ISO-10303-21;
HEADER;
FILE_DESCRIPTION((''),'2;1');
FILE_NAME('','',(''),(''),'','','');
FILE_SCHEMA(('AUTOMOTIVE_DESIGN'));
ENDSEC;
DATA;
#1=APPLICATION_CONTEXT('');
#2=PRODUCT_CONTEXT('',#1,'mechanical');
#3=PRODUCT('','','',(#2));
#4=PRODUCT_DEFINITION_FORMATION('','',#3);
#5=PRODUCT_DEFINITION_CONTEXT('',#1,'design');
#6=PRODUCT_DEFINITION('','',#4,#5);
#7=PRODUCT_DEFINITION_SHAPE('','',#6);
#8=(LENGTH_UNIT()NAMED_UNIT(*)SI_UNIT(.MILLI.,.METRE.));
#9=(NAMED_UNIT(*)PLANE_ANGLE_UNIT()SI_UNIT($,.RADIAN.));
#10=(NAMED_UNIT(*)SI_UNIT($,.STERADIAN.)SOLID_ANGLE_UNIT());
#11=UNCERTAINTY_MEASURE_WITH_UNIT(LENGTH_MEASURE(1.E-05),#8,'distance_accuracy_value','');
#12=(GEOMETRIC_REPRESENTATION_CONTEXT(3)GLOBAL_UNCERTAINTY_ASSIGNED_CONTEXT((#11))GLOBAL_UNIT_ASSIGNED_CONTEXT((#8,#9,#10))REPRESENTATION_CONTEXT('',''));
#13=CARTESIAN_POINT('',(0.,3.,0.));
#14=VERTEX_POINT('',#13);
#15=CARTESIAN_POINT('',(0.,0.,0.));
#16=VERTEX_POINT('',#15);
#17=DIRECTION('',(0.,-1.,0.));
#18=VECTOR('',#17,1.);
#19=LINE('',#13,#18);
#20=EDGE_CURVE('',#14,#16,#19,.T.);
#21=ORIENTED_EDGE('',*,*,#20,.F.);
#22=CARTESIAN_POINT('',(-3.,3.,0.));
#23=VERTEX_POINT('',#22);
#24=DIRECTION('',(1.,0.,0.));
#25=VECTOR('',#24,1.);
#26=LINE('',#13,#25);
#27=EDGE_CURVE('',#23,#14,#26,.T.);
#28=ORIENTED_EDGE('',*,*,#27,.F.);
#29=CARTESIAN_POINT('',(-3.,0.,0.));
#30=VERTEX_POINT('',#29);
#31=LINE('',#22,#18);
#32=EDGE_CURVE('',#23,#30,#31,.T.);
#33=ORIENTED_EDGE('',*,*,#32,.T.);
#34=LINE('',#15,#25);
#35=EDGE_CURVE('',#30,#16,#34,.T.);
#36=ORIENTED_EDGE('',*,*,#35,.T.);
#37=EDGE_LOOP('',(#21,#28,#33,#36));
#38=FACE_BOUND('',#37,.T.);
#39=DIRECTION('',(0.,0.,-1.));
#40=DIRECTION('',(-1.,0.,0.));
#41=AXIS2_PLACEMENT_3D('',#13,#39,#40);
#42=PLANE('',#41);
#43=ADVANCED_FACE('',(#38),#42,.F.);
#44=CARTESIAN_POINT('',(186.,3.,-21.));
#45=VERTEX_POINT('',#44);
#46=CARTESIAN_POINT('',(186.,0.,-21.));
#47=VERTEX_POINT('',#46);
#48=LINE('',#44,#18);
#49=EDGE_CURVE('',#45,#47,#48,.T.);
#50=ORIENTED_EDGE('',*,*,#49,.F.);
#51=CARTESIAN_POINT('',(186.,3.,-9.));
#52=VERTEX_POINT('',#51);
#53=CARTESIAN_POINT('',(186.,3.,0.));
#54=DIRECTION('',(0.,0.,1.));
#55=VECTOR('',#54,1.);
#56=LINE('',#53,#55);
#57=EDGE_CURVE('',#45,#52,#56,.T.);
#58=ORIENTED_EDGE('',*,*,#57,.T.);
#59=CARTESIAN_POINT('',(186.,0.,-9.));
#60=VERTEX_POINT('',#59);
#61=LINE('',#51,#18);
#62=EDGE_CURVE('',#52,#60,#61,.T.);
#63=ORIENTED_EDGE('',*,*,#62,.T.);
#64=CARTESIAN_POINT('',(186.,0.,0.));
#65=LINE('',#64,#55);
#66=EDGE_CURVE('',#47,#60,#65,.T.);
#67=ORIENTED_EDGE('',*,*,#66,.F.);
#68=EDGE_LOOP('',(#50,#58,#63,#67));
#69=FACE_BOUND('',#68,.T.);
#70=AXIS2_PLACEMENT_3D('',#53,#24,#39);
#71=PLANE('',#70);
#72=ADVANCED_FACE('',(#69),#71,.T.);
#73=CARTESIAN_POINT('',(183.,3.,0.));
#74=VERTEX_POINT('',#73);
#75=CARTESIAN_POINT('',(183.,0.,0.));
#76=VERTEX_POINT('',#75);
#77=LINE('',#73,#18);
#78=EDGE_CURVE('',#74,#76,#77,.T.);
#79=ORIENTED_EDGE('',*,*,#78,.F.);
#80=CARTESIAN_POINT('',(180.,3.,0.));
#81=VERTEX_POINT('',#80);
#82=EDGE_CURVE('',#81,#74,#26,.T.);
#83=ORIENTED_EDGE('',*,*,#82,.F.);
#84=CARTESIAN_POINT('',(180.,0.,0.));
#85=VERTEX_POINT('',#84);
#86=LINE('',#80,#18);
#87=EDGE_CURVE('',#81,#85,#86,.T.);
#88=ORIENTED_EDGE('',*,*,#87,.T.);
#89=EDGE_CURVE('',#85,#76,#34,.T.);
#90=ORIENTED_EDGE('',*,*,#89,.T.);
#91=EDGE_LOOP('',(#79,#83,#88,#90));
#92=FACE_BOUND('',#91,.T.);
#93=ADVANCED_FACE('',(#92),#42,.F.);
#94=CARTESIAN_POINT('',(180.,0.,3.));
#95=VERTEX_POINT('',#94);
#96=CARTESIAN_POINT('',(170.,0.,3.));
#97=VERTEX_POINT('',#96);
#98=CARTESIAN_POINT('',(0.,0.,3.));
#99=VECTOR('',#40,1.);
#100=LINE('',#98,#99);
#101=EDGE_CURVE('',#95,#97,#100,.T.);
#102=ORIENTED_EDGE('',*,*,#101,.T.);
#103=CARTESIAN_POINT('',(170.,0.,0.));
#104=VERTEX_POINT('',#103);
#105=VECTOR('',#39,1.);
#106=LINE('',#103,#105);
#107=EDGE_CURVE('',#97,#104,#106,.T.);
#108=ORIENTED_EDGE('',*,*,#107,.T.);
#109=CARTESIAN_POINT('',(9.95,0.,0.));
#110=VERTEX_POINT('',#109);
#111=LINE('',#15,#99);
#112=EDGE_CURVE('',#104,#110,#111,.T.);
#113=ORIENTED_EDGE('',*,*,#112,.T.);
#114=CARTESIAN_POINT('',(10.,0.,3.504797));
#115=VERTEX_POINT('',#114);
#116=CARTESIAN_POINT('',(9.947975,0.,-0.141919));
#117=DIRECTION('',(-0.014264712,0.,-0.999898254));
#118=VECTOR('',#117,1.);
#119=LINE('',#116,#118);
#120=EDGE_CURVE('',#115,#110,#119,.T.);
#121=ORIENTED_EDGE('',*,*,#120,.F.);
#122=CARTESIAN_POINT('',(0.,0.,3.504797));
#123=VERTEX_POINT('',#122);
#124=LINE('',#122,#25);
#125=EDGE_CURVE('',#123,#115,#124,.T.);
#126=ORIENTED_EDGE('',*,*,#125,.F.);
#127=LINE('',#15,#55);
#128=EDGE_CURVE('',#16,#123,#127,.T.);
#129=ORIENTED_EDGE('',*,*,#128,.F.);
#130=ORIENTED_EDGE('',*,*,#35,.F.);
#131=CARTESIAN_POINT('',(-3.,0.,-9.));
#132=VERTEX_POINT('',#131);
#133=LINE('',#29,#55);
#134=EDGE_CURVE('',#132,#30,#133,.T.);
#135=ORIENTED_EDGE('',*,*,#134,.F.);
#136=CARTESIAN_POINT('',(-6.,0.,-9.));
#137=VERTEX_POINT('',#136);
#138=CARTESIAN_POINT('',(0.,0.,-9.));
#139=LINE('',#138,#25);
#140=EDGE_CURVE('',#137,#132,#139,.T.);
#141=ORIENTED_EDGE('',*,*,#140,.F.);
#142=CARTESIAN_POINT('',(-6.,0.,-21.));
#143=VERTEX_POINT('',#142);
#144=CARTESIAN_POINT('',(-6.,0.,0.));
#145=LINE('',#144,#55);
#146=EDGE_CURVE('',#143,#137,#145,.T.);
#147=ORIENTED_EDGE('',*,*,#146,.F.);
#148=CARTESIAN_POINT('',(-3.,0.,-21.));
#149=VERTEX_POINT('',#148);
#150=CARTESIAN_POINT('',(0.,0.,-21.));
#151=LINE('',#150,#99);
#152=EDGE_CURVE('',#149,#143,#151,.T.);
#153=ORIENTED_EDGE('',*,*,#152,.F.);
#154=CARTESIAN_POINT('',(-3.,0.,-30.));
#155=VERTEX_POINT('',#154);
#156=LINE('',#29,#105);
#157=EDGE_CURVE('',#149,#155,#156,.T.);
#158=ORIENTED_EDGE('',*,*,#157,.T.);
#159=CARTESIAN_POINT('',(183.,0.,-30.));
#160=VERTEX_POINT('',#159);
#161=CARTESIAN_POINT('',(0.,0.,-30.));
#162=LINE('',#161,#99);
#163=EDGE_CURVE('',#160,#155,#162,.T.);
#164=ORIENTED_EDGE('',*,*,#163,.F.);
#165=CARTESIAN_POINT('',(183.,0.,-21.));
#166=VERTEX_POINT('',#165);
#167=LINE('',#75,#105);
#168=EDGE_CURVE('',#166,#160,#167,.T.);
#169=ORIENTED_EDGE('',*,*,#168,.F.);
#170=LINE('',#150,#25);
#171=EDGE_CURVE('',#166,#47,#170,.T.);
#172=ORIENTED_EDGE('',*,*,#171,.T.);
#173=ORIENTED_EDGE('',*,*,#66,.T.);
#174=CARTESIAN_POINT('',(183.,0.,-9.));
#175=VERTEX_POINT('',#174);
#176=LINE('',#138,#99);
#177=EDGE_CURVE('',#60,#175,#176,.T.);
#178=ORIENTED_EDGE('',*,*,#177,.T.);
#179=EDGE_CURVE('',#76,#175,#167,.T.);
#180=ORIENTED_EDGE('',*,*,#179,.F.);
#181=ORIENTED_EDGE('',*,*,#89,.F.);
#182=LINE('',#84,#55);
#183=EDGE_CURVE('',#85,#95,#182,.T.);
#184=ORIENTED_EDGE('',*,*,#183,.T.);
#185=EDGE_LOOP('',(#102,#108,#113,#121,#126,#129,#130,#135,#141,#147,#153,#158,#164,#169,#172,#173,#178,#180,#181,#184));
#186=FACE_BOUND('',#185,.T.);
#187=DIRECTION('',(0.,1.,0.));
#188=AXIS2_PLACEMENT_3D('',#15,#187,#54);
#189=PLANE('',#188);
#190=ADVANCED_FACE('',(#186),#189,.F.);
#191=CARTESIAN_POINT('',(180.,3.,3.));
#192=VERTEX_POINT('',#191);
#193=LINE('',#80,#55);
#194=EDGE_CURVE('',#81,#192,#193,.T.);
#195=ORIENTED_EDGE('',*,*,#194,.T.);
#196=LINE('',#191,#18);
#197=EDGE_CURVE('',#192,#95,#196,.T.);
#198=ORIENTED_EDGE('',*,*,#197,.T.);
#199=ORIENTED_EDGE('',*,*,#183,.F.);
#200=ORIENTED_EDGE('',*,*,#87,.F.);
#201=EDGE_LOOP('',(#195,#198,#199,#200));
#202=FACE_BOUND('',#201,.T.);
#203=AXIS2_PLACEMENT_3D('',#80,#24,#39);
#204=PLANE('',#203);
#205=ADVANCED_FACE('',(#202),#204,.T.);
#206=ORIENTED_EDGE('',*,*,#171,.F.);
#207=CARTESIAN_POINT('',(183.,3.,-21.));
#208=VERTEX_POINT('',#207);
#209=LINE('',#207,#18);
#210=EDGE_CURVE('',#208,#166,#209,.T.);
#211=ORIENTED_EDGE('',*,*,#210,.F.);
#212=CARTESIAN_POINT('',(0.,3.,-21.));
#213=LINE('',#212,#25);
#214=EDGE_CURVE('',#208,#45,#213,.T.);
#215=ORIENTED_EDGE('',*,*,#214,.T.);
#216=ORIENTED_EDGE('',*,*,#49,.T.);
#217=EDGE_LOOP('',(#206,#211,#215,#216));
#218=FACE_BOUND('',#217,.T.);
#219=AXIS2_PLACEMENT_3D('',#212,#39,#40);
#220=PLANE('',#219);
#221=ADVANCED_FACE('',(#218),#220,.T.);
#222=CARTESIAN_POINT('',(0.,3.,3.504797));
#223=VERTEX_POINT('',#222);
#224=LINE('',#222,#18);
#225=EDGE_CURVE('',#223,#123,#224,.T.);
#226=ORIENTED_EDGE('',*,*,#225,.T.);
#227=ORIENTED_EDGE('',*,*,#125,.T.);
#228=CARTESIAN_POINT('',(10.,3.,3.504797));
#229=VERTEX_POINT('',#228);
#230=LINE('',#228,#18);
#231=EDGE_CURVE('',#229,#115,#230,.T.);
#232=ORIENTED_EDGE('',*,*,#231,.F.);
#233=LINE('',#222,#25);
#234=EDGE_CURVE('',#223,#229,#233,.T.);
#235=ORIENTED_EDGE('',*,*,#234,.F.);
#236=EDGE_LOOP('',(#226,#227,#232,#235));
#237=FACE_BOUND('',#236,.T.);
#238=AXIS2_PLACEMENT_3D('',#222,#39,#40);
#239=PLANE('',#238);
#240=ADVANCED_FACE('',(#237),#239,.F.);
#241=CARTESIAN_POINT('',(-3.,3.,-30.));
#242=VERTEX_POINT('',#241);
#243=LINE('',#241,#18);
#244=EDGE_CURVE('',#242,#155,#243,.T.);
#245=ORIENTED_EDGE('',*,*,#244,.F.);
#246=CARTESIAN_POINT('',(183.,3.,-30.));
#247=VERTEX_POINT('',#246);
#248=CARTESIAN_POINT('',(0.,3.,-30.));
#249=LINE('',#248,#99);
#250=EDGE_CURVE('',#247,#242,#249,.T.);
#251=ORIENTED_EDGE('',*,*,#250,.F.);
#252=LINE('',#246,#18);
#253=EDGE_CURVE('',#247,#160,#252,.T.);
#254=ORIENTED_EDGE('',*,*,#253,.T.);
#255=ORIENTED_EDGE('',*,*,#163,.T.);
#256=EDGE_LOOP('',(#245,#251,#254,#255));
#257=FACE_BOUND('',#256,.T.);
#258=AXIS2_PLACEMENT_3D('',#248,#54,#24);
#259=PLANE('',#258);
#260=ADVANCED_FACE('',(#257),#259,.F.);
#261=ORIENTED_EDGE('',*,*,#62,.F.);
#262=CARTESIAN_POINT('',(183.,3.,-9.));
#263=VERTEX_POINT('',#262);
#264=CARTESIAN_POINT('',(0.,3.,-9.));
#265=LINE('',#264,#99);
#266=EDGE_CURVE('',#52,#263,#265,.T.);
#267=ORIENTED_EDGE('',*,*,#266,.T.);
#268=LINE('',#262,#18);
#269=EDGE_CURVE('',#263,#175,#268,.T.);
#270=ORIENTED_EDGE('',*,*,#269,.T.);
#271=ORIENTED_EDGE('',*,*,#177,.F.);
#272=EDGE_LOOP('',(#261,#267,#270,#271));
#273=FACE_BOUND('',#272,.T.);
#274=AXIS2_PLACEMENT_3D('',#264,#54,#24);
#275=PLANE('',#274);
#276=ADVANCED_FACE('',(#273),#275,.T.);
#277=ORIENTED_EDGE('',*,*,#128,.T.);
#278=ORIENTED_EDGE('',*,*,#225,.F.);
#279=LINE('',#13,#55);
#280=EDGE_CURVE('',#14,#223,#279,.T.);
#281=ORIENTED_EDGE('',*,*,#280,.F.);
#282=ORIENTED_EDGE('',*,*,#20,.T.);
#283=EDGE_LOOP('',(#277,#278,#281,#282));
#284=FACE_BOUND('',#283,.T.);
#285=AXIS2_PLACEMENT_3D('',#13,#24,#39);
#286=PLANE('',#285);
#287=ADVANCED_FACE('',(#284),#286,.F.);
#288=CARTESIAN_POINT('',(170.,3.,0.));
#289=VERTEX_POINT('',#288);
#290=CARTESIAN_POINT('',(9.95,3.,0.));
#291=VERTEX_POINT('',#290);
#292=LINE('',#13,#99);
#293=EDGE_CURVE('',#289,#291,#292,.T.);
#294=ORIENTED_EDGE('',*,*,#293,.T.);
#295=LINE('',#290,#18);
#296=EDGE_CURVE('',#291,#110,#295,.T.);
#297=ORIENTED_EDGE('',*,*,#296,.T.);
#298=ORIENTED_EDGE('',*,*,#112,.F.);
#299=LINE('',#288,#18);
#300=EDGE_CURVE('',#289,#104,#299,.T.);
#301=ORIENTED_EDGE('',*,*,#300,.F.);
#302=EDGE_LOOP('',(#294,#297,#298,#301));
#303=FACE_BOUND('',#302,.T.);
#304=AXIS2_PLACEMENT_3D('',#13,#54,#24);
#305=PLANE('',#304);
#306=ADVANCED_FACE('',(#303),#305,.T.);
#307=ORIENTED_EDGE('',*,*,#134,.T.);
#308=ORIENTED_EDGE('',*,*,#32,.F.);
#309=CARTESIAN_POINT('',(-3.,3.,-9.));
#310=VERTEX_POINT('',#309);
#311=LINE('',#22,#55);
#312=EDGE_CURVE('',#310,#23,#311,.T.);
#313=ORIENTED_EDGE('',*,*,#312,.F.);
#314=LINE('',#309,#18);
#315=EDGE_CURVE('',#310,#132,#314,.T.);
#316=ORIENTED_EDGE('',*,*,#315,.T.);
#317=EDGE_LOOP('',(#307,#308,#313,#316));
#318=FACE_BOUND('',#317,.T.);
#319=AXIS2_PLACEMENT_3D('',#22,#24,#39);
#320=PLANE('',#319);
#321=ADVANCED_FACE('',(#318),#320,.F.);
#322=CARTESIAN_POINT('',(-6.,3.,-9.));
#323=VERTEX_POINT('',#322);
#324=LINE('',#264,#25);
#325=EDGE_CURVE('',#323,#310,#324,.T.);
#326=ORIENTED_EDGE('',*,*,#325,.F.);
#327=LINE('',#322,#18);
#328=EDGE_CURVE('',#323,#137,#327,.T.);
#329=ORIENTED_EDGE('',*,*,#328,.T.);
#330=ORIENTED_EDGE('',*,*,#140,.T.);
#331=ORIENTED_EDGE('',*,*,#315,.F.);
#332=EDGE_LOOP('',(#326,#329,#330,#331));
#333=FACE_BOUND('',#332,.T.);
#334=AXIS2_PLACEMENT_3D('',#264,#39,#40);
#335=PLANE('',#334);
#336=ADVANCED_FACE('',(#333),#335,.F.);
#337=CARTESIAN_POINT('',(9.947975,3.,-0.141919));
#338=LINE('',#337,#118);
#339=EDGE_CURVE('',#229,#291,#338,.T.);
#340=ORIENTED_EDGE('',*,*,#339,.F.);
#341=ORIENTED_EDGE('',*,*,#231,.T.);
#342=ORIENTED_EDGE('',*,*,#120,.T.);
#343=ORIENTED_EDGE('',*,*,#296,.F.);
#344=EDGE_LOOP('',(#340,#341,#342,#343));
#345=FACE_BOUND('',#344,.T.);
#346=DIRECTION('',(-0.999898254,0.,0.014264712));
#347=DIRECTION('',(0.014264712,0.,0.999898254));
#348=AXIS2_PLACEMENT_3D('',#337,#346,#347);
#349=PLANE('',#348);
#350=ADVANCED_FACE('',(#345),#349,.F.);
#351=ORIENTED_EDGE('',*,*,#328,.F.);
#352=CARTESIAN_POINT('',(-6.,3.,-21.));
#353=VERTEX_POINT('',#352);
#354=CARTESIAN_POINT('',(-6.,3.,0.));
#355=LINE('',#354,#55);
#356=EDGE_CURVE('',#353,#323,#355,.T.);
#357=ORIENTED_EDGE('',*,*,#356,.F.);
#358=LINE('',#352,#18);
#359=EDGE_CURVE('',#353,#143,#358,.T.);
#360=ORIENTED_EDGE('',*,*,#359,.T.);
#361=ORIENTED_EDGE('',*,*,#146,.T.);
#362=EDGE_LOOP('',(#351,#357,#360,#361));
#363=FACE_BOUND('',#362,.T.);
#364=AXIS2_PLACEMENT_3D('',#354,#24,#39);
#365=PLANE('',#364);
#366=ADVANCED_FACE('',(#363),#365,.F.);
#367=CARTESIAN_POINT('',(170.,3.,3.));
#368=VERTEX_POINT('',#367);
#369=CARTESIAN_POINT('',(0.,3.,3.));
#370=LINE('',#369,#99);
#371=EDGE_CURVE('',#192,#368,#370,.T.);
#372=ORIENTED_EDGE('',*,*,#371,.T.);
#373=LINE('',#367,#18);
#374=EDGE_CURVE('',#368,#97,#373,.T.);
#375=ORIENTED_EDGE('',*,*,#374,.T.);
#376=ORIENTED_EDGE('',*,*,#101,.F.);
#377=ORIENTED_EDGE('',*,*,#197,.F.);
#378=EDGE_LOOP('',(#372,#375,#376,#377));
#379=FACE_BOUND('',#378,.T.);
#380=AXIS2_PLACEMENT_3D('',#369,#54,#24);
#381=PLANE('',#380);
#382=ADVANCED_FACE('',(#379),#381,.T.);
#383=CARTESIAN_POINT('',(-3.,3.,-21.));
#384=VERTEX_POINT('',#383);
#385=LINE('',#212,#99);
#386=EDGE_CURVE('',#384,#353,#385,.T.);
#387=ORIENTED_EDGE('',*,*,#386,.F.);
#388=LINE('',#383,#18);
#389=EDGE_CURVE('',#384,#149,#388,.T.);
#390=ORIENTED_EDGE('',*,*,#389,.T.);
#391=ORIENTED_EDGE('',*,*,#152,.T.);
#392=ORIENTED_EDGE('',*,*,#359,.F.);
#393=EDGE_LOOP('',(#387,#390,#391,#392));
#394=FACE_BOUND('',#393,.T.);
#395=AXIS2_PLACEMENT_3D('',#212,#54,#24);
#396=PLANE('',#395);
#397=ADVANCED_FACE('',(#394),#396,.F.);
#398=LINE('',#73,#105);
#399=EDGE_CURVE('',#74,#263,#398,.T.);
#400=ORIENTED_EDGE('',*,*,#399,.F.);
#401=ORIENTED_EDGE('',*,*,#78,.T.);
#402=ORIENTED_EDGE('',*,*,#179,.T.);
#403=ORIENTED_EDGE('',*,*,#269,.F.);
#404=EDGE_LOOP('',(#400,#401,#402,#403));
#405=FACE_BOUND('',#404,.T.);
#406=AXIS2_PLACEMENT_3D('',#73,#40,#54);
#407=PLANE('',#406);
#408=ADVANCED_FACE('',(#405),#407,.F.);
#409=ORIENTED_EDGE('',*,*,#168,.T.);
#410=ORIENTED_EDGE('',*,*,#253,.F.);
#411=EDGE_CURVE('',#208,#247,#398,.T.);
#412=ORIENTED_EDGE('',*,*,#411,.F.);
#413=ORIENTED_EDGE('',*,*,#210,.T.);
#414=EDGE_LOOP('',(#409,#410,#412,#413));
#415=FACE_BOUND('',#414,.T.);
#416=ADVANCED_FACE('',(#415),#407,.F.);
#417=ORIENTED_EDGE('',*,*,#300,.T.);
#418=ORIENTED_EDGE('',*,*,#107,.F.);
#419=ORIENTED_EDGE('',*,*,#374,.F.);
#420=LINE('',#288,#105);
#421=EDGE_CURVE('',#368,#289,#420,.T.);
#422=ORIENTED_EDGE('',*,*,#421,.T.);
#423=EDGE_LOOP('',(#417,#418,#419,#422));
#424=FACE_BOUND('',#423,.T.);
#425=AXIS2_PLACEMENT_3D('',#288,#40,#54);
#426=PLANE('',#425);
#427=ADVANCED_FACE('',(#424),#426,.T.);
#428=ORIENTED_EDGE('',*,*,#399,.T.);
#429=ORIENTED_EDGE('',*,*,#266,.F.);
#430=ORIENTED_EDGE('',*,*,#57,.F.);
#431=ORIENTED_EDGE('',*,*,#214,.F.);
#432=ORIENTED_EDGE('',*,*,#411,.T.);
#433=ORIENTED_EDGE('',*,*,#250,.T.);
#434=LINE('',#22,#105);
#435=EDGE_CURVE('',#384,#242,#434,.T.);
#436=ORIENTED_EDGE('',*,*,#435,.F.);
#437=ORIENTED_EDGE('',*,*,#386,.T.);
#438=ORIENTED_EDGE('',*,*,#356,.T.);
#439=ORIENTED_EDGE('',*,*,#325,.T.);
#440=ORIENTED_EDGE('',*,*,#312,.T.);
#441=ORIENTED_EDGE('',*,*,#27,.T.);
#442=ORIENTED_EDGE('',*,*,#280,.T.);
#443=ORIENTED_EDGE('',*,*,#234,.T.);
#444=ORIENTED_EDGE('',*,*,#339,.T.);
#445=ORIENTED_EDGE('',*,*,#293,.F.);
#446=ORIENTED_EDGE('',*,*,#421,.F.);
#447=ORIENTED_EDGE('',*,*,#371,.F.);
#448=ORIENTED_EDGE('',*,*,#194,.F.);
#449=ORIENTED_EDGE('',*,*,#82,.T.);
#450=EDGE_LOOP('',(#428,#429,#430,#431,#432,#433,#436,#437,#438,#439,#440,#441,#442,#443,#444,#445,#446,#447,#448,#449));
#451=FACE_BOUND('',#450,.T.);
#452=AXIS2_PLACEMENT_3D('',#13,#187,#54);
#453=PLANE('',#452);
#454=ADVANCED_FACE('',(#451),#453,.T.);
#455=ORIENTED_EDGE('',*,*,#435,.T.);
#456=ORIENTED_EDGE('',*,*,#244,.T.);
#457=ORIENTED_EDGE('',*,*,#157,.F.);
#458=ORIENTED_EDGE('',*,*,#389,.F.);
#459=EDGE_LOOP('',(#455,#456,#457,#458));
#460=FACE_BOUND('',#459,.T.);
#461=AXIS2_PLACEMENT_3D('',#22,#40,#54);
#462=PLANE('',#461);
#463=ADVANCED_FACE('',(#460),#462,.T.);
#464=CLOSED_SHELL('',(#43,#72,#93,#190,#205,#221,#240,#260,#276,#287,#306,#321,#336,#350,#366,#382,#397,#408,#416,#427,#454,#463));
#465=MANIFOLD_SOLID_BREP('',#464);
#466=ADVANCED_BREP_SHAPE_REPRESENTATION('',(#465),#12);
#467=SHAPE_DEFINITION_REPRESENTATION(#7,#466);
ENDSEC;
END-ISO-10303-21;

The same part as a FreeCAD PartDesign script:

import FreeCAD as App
import Part
import Sketcher
from FreeCAD import Vector
Q = App.Units.Quantity

doc = App.newDocument("Part")
body = doc.addObject("PartDesign::Body", "Body")

# Sketch on XZ plane
sketch1 = body.newObject("Sketcher::SketchObject", "Sketch")
sketch1.AttachmentSupport = (doc.getObject("XZ_Plane"), [""])
sketch1.MapMode = "FlatFace"
sketch1.addGeometry([
    Part.LineSegment(Vector(-3, -30, 0), Vector(-3, -21, 0)),  # 0
    Part.LineSegment(Vector(-3, -21, 0), Vector(-6, -21, 0)),  # 1
    Part.LineSegment(Vector(-6, -21, 0), Vector(-6, -9, 0)),  # 2
    Part.LineSegment(Vector(-6, -9, 0), Vector(-3, -9, 0)),  # 3
    Part.LineSegment(Vector(-3, -9, 0), Vector(-3, 0, 0)),  # 4
    Part.LineSegment(Vector(-3, 0, 0), Vector(0, 0, 0)),  # 5
    Part.LineSegment(Vector(0, 0, 0), Vector(0, 3.504797, 0)),  # 6
    Part.LineSegment(Vector(0, 3.504797, 0), Vector(10, 3.504797, 0)),  # 7
    Part.LineSegment(Vector(10, 3.504797, 0), Vector(9.95, 0, 0)),  # 8
    Part.LineSegment(Vector(9.95, 0, 0), Vector(170, 0, 0)),  # 9
    Part.LineSegment(Vector(170, 0, 0), Vector(170, 3, 0)),  # 10
    Part.LineSegment(Vector(170, 3, 0), Vector(180, 3, 0)),  # 11
    Part.LineSegment(Vector(180, 3, 0), Vector(180, 0, 0)),  # 12
    Part.LineSegment(Vector(180, 0, 0), Vector(183, 0, 0)),  # 13
    Part.LineSegment(Vector(183, 0, 0), Vector(183, -9, 0)),  # 14
    Part.LineSegment(Vector(183, -9, 0), Vector(186, -9, 0)),  # 15
    Part.LineSegment(Vector(186, -9, 0), Vector(186, -21, 0)),  # 16
    Part.LineSegment(Vector(186, -21, 0), Vector(183, -21, 0)),  # 17
    Part.LineSegment(Vector(183, -21, 0), Vector(183, -30, 0)),  # 18
    Part.LineSegment(Vector(183, -30, 0), Vector(-3, -30, 0)),  # 19
], False)
sketch1.addConstraint([
    Sketcher.Constraint("Coincident", 0, 2, 1, 1),
    Sketcher.Constraint("Coincident", 1, 2, 2, 1),
    Sketcher.Constraint("Coincident", 2, 2, 3, 1),
    Sketcher.Constraint("Coincident", 3, 2, 4, 1),
    Sketcher.Constraint("Coincident", 4, 2, 5, 1),
    Sketcher.Constraint("Coincident", 5, 2, 6, 1),
    Sketcher.Constraint("Coincident", 6, 2, 7, 1),
    Sketcher.Constraint("Coincident", 7, 2, 8, 1),
    Sketcher.Constraint("Coincident", 8, 2, 9, 1),
    Sketcher.Constraint("Coincident", 9, 2, 10, 1),
    Sketcher.Constraint("Coincident", 10, 2, 11, 1),
    Sketcher.Constraint("Coincident", 11, 2, 12, 1),
    Sketcher.Constraint("Coincident", 12, 2, 13, 1),
    Sketcher.Constraint("Coincident", 13, 2, 14, 1),
    Sketcher.Constraint("Coincident", 14, 2, 15, 1),
    Sketcher.Constraint("Coincident", 15, 2, 16, 1),
    Sketcher.Constraint("Coincident", 16, 2, 17, 1),
    Sketcher.Constraint("Coincident", 17, 2, 18, 1),
    Sketcher.Constraint("Coincident", 18, 2, 19, 1),
    Sketcher.Constraint("Coincident", 19, 2, 0, 1),
    Sketcher.Constraint("Vertical", 0),
    Sketcher.Constraint("Horizontal", 1),
    Sketcher.Constraint("Vertical", 2),
    Sketcher.Constraint("Horizontal", 3),
    Sketcher.Constraint("Vertical", 4),
    Sketcher.Constraint("Horizontal", 5),
    Sketcher.Constraint("Vertical", 6),
    Sketcher.Constraint("Horizontal", 7),
    Sketcher.Constraint("Horizontal", 9),
    Sketcher.Constraint("Vertical", 10),
    Sketcher.Constraint("Horizontal", 11),
    Sketcher.Constraint("Vertical", 12),
    Sketcher.Constraint("Horizontal", 13),
    Sketcher.Constraint("Vertical", 14),
    Sketcher.Constraint("Horizontal", 15),
    Sketcher.Constraint("Vertical", 16),
    Sketcher.Constraint("Horizontal", 17),
    Sketcher.Constraint("Vertical", 18),
    Sketcher.Constraint("Horizontal", 19),
    Sketcher.Constraint("Coincident", 5, 2, -1, 1),
    Sketcher.Constraint("PointOnObject", 8, 2, -1),
    Sketcher.Constraint("PointOnObject", 12, 2, -1),
    Sketcher.Constraint("Horizontal", 3, 2, 14, 2),
    Sketcher.Constraint("Horizontal", 1, 2, 16, 2),
    Sketcher.Constraint("Vertical", 0, 2, 3, 2),
    Sketcher.Constraint("Vertical", 14, 2, 17, 2),
    Sketcher.Constraint("Equal", 3, 5),
    Sketcher.Constraint("Equal", 7, 11),
    Sketcher.Constraint("Equal", 5, 13),
    Sketcher.Constraint("Equal", 13, 15),
    Sketcher.Constraint("Equal", 0, 4),
    Sketcher.Constraint("Equal", 17, 10),
    Sketcher.Constraint("DistanceX", 1, 2, 1, 1, Q("3 mm")),
    Sketcher.Constraint("DistanceX", 7, 1, 7, 2, Q("10 mm")),
    Sketcher.Constraint("DistanceX", 19, 2, 19, 1, Q("186 mm")),
    Sketcher.Constraint("DistanceY", 0, 1, 0, 2, Q("9 mm")),
    Sketcher.Constraint("DistanceY", 2, 1, 2, 2, Q("12 mm")),
    Sketcher.Constraint("DistanceX", 9, 1, 9, 2, Q("160.05 mm")),
    Sketcher.Constraint("DistanceY", 6, 1, 6, 2, Q("3.504797 mm")),
])
pad1 = body.newObject("PartDesign::Pad", "Pad")
pad1.Profile = sketch1
pad1.Length = 3
pad1.Reversed = True

doc.recompute()
